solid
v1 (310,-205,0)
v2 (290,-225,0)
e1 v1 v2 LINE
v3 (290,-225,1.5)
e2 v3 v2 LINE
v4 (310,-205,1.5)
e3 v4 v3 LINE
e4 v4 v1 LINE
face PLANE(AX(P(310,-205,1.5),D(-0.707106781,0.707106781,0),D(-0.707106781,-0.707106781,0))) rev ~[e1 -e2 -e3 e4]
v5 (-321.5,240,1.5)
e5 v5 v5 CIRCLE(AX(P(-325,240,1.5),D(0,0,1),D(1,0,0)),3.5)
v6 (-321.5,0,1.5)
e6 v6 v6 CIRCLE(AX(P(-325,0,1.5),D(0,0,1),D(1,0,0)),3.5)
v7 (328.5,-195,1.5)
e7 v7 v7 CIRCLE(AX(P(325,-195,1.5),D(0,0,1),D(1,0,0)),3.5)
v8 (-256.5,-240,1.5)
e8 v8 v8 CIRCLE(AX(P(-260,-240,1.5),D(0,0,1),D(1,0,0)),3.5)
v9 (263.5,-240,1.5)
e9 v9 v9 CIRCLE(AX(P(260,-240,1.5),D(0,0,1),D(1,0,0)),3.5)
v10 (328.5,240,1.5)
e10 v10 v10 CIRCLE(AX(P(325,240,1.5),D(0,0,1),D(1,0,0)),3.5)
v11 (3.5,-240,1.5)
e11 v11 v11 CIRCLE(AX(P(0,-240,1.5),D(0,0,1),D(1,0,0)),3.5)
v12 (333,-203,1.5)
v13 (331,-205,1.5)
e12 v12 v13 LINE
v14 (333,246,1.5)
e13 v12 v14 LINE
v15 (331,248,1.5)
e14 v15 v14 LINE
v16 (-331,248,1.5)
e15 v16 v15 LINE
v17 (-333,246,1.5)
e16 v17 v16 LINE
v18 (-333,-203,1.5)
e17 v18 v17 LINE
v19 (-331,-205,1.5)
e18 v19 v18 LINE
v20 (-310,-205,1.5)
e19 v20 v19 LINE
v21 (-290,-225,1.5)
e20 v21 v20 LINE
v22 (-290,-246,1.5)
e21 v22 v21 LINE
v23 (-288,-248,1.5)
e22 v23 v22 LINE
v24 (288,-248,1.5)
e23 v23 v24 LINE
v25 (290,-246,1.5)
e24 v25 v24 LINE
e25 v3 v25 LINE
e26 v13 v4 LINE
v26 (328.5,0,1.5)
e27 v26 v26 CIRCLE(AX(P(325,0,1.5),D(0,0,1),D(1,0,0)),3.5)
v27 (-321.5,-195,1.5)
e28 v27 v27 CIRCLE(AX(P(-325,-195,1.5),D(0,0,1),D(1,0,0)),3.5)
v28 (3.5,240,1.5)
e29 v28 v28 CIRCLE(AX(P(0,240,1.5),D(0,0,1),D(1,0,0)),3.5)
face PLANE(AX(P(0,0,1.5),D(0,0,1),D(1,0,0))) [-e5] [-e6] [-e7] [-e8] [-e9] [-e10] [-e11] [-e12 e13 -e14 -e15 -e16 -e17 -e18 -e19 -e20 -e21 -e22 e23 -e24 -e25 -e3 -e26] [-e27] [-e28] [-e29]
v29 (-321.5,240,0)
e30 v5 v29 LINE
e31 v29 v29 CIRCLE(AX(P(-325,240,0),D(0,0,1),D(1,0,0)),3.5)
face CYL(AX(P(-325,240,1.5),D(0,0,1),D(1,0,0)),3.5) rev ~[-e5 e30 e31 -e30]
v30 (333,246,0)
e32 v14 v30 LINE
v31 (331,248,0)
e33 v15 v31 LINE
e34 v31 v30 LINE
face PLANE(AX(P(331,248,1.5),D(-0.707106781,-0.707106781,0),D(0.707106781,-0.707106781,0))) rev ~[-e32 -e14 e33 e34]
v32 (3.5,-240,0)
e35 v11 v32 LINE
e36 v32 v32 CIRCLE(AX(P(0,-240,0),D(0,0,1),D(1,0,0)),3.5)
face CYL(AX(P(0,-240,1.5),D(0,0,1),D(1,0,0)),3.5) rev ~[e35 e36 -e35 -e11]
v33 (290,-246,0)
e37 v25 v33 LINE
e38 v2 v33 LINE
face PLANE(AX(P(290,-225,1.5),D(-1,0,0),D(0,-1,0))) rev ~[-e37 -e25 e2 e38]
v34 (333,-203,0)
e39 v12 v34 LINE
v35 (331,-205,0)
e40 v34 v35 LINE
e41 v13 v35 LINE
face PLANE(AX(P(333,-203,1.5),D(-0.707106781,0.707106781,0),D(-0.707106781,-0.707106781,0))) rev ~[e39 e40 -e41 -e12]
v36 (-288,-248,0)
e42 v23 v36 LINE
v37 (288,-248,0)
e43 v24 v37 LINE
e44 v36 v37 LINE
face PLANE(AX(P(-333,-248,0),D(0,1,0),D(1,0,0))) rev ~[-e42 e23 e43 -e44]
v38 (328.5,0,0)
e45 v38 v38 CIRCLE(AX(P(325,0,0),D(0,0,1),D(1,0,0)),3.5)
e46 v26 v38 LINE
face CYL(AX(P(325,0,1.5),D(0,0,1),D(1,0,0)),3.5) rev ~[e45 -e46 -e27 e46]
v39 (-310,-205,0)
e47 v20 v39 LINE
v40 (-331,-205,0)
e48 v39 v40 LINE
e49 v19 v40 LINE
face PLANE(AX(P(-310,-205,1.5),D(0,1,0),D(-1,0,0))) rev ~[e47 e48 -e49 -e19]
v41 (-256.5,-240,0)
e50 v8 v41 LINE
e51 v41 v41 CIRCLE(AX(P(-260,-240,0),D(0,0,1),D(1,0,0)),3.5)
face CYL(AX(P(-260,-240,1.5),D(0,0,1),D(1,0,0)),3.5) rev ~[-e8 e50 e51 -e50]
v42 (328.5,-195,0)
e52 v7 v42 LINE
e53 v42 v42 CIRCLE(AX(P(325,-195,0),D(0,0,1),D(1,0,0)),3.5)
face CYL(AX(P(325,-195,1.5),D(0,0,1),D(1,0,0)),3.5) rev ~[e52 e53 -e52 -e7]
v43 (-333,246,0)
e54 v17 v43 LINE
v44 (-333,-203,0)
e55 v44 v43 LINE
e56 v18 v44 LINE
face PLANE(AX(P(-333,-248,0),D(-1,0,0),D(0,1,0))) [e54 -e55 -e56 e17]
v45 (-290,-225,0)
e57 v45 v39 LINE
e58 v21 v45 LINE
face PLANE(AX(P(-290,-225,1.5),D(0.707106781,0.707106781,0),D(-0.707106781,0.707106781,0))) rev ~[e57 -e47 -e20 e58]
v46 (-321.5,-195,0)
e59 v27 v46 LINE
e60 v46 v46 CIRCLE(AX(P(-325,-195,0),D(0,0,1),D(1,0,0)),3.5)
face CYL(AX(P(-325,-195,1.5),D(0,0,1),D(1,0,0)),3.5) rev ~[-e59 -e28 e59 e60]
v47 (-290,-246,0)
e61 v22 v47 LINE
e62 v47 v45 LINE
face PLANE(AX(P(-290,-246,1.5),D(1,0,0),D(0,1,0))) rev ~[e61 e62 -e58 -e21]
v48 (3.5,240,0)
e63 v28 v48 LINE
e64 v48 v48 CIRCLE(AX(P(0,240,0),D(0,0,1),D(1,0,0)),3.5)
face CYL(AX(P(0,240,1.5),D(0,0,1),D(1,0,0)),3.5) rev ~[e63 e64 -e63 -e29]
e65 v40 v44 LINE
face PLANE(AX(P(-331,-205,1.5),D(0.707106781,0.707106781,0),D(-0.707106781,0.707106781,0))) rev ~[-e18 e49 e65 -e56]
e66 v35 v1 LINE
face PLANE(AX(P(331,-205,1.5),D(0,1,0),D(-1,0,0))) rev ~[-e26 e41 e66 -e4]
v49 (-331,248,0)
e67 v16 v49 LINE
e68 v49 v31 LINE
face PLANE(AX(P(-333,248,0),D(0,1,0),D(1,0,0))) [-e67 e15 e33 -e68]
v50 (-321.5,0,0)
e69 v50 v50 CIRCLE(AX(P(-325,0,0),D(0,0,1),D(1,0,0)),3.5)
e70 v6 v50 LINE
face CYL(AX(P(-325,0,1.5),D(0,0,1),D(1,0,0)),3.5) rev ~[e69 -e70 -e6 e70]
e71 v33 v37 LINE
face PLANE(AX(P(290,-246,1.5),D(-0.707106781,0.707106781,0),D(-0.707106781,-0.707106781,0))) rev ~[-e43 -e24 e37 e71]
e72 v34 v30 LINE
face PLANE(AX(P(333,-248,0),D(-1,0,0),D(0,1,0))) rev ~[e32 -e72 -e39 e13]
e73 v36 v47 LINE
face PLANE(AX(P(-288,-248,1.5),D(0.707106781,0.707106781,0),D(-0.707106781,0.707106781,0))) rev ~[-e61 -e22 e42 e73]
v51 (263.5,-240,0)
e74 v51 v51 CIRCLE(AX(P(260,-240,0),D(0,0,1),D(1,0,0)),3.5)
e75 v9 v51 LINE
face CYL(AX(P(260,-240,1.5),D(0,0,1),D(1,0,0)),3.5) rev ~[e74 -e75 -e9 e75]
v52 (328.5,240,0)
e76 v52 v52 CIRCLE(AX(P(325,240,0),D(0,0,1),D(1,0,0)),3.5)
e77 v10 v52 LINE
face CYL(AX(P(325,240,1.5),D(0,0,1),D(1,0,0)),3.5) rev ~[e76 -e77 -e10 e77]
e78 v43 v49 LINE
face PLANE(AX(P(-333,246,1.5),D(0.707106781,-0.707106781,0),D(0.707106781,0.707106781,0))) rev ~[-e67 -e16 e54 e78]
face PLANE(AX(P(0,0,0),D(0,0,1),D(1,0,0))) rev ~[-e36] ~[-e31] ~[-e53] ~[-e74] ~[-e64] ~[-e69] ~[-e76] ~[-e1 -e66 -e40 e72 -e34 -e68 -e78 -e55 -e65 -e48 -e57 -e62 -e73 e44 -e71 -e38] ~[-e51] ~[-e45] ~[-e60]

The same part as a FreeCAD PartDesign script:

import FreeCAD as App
import Part
import Sketcher
Q = App.Units.Quantity

doc = App.newDocument("Part")
params = doc.addObject("Spreadsheet::Sheet", "Params")
for row, (alias, value) in enumerate([
    ("sketch1_width", "666 mm"),
    ("sketch1_height", "496 mm"),
    ("pad1_length", "1.5 mm"),
    ("sketch2_diameter", "7 mm"),
    ("sketch3_width", "2 mm"),
    ("sketch3_width2", "45 mm"),
    ("sketch3_width3", "21 mm"),
], start=1):
    params.set(f"A{row}", alias)
    params.set(f"B{row}", "=" + value)
    params.setAlias(f"B{row}", alias)

body = doc.addObject("PartDesign::Body", "Body")

sketch1 = doc.addObject("Sketcher::SketchObject", "Sketch")
body.addObject(sketch1)
sketch1.AttachmentSupport = (doc.XY_Plane, [""])
sketch1.MapMode = "FlatFace"
sketch1.addGeometry(Part.LineSegment(App.Vector(-333, 248, 0), App.Vector(-333, -248, 0)), False)
sketch1.addGeometry(Part.LineSegment(App.Vector(-333, -248, 0), App.Vector(333, -248, 0)), False)
sketch1.addGeometry(Part.LineSegment(App.Vector(333, -248, 0), App.Vector(333, 248, 0)), False)
sketch1.addGeometry(Part.LineSegment(App.Vector(333, 248, 0), App.Vector(-333, 248, 0)), False)
sketch1.addConstraint(Sketcher.Constraint("Coincident", 0, 2, 1, 1))
sketch1.addConstraint(Sketcher.Constraint("Coincident", 1, 2, 2, 1))
sketch1.addConstraint(Sketcher.Constraint("Coincident", 2, 2, 3, 1))
sketch1.addConstraint(Sketcher.Constraint("Coincident", 3, 2, 0, 1))
sketch1.addConstraint(Sketcher.Constraint("Vertical", 0))
sketch1.addConstraint(Sketcher.Constraint("Horizontal", 1))
sketch1.addConstraint(Sketcher.Constraint("Vertical", 2))
sketch1.addConstraint(Sketcher.Constraint("Horizontal", 3))
sketch1.addConstraint(Sketcher.Constraint("Symmetric", 0, 2, 2, 2, -1, 1))
sketch1.addConstraint(Sketcher.Constraint("DistanceX", 1, 1, 1, 2, Q("666 mm")))
sketch1.addConstraint(Sketcher.Constraint("DistanceY", 0, 2, 0, 1, Q("496 mm")))
sketch1.setExpression("Constraints[9]", "Params.sketch1_width")
sketch1.setExpression("Constraints[10]", "Params.sketch1_height")
pad1 = doc.addObject("PartDesign::Pad", "Pad")
body.addObject(pad1)
pad1.Profile = sketch1
pad1.setExpression("Length", "Params.pad1_length")

sketch2 = doc.addObject("Sketcher::SketchObject", "Sketch001")
body.addObject(sketch2)
sketch2.AttachmentSupport = (doc.XY_Plane, [""])
sketch2.MapMode = "FlatFace"
sketch2.AttachmentOffset = App.Placement(App.Vector(0, 0, 1.5), App.Rotation())
sketch2.addGeometry(Part.Circle(App.Vector(-325, 240, 0), App.Vector(0, 0, 1), 3.5), False)
sketch2.addGeometry(Part.Circle(App.Vector(0, 240, 0), App.Vector(0, 0, 1), 3.5), False)
sketch2.addGeometry(Part.Circle(App.Vector(325, 240, 0), App.Vector(0, 0, 1), 3.5), False)
sketch2.addGeometry(Part.Circle(App.Vector(325, 0, 0), App.Vector(0, 0, 1), 3.5), False)
sketch2.addGeometry(Part.Circle(App.Vector(325, -195, 0), App.Vector(0, 0, 1), 3.5), False)
sketch2.addGeometry(Part.Circle(App.Vector(260, -240, 0), App.Vector(0, 0, 1), 3.5), False)
sketch2.addGeometry(Part.Circle(App.Vector(-260, -240, 0), App.Vector(0, 0, 1), 3.5), False)
sketch2.addGeometry(Part.Circle(App.Vector(-325, -195, 0), App.Vector(0, 0, 1), 3.5), False)
sketch2.addGeometry(Part.Circle(App.Vector(-325, 0, 0), App.Vector(0, 0, 1), 3.5), False)
sketch2.addGeometry(Part.Circle(App.Vector(0, -240, 0), App.Vector(0, 0, 1), 3.5), False)
sketch2.addConstraint(Sketcher.Constraint("Equal", 0, 1))
sketch2.addConstraint(Sketcher.Constraint("Equal", 1, 2))
sketch2.addConstraint(Sketcher.Constraint("Equal", 2, 3))
sketch2.addConstraint(Sketcher.Constraint("Equal", 3, 4))
sketch2.addConstraint(Sketcher.Constraint("Equal", 4, 5))
sketch2.addConstraint(Sketcher.Constraint("Equal", 5, 6))
sketch2.addConstraint(Sketcher.Constraint("Equal", 6, 7))
sketch2.addConstraint(Sketcher.Constraint("Equal", 7, 8))
sketch2.addConstraint(Sketcher.Constraint("Equal", 8, 9))
sketch2.addConstraint(Sketcher.Constraint("Symmetric", 3, 3, 8, 3, -1, 1))
sketch2.addConstraint(Sketcher.Constraint("Symmetric", 1, 3, 9, 3, -1, 1))
sketch2.addConstraint(Sketcher.Constraint("Symmetric", 0, 3, 2, 3, -2))
sketch2.addConstraint(Sketcher.Constraint("Symmetric", 5, 3, 6, 3, -2))
sketch2.addConstraint(Sketcher.Constraint("Symmetric", 4, 3, 7, 3, -2))
sketch2.addConstraint(Sketcher.Constraint("PointOnObject", 1, 3, -2))
sketch2.addConstraint(Sketcher.Constraint("PointOnObject", 3, 3, -1))
sketch2.addConstraint(Sketcher.Constraint("Horizontal", 0, 3, 1, 3))
sketch2.addConstraint(Sketcher.Constraint("Horizontal", 6, 3, 9, 3))
sketch2.addConstraint(Sketcher.Constraint("Vertical", 2, 3, 3, 3))
sketch2.addConstraint(Sketcher.Constraint("Vertical", 3, 3, 4, 3))
sketch2.addConstraint(Sketcher.Constraint("Diameter", 0, Q("7 mm")))
sketch2.addConstraint(Sketcher.Constraint("DistanceX", 0, 3, -1, 1, Q("325 mm")))
sketch2.addConstraint(Sketcher.Constraint("DistanceY", -1, 1, 0, 3, Q("240 mm")))
sketch2.addConstraint(Sketcher.Constraint("DistanceY", 4, 3, -1, 1, Q("195 mm")))
sketch2.addConstraint(Sketcher.Constraint("DistanceX", -1, 1, 5, 3, Q("260 mm")))
sketch2.setExpression("Constraints[20]", "Params.sketch2_diameter")
pocket1 = doc.addObject("PartDesign::Pocket", "Pocket")
body.addObject(pocket1)
pocket1.Profile = sketch2
pocket1.Type = "ThroughAll"

sketch3 = doc.addObject("Sketcher::SketchObject", "Sketch002")
body.addObject(sketch3)
sketch3.AttachmentSupport = (doc.XY_Plane, [""])
sketch3.MapMode = "FlatFace"
sketch3.AttachmentOffset = App.Placement(App.Vector(0, 0, 1.5), App.Rotation())
sketch3.addGeometry(Part.LineSegment(App.Vector(-331, 248, 0), App.Vector(-333, 248, 0)), False)
sketch3.addGeometry(Part.LineSegment(App.Vector(-333, 248, 0), App.Vector(-333, 246, 0)), False)
sketch3.addGeometry(Part.LineSegment(App.Vector(-333, 246, 0), App.Vector(-331, 248, 0)), False)
sketch3.addGeometry(Part.LineSegment(App.Vector(-333, -248, 0), App.Vector(-288, -248, 0)), False)
sketch3.addGeometry(Part.LineSegment(App.Vector(-288, -248, 0), App.Vector(-290, -246, 0)), False)
sketch3.addGeometry(Part.LineSegment(App.Vector(-290, -246, 0), App.Vector(-290, -225, 0)), False)
sketch3.addGeometry(Part.LineSegment(App.Vector(-290, -225, 0), App.Vector(-310, -205, 0)), False)
sketch3.addGeometry(Part.LineSegment(App.Vector(-310, -205, 0), App.Vector(-331, -205, 0)), False)
sketch3.addGeometry(Part.LineSegment(App.Vector(-331, -205, 0), App.Vector(-333, -203, 0)), False)
sketch3.addGeometry(Part.LineSegment(App.Vector(-333, -203, 0), App.Vector(-333, -248, 0)), False)
sketch3.addGeometry(Part.LineSegment(App.Vector(333, 248, 0), App.Vector(331, 248, 0)), False)
sketch3.addGeometry(Part.LineSegment(App.Vector(331, 248, 0), App.Vector(333, 246, 0)), False)
sketch3.addGeometry(Part.LineSegment(App.Vector(333, 246, 0), App.Vector(333, 248, 0)), False)
sketch3.addGeometry(Part.LineSegment(App.Vector(333, -203, 0), App.Vector(331, -205, 0)), False)
sketch3.addGeometry(Part.LineSegment(App.Vector(331, -205, 0), App.Vector(310, -205, 0)), False)
sketch3.addGeometry(Part.LineSegment(App.Vector(310, -205, 0), App.Vector(290, -225, 0)), False)
sketch3.addGeometry(Part.LineSegment(App.Vector(290, -225, 0), App.Vector(290, -246, 0)), False)
sketch3.addGeometry(Part.LineSegment(App.Vector(290, -246, 0), App.Vector(288, -248, 0)), False)
sketch3.addGeometry(Part.LineSegment(App.Vector(288, -248, 0), App.Vector(333, -248, 0)), False)
sketch3.addGeometry(Part.LineSegment(App.Vector(333, -248, 0), App.Vector(333, -203, 0)), False)
sketch3.addConstraint(Sketcher.Constraint("Coincident", 0, 2, 1, 1))
sketch3.addConstraint(Sketcher.Constraint("Coincident", 1, 2, 2, 1))
sketch3.addConstraint(Sketcher.Constraint("Coincident", 2, 2, 0, 1))
sketch3.addConstraint(Sketcher.Constraint("Coincident", 3, 2, 4, 1))
sketch3.addConstraint(Sketcher.Constraint("Coincident", 4, 2, 5, 1))
sketch3.addConstraint(Sketcher.Constraint("Coincident", 5, 2, 6, 1))
sketch3.addConstraint(Sketcher.Constraint("Coincident", 6, 2, 7, 1))
sketch3.addConstraint(Sketcher.Constraint("Coincident", 7, 2, 8, 1))
sketch3.addConstraint(Sketcher.Constraint("Coincident", 8, 2, 9, 1))
sketch3.addConstraint(Sketcher.Constraint("Coincident", 9, 2, 3, 1))
sketch3.addConstraint(Sketcher.Constraint("Coincident", 10, 2, 11, 1))
sketch3.addConstraint(Sketcher.Constraint("Coincident", 11, 2, 12, 1))
sketch3.addConstraint(Sketcher.Constraint("Coincident", 12, 2, 10, 1))
sketch3.addConstraint(Sketcher.Constraint("Coincident", 13, 2, 14, 1))
sketch3.addConstraint(Sketcher.Constraint("Coincident", 14, 2, 15, 1))
sketch3.addConstraint(Sketcher.Constraint("Coincident", 15, 2, 16, 1))
sketch3.addConstraint(Sketcher.Constraint("Coincident", 16, 2, 17, 1))
sketch3.addConstraint(Sketcher.Constraint("Coincident", 17, 2, 18, 1))
sketch3.addConstraint(Sketcher.Constraint("Coincident", 18, 2, 19, 1))
sketch3.addConstraint(Sketcher.Constraint("Coincident", 19, 2, 13, 1))
sketch3.addConstraint(Sketcher.Constraint("Horizontal", 0))
sketch3.addConstraint(Sketcher.Constraint("Vertical", 1))
sketch3.addConstraint(Sketcher.Constraint("Horizontal", 3))
sketch3.addConstraint(Sketcher.Constraint("Vertical", 5))
sketch3.addConstraint(Sketcher.Constraint("Horizontal", 7))
sketch3.addConstraint(Sketcher.Constraint("Vertical", 9))
sketch3.addConstraint(Sketcher.Constraint("Horizontal", 10))
sketch3.addConstraint(Sketcher.Constraint("Vertical", 12))
sketch3.addConstraint(Sketcher.Constraint("Horizontal", 14))
sketch3.addConstraint(Sketcher.Constraint("Vertical", 16))
sketch3.addConstraint(Sketcher.Constraint("Horizontal", 18))
sketch3.addConstraint(Sketcher.Constraint("Vertical", 19))
sketch3.addConstraint(Sketcher.Constraint("Symmetric", 9, 2, 12, 2, -1, 1))
sketch3.addConstraint(Sketcher.Constraint("Symmetric", 0, 2, 18, 2, -1, 1))
sketch3.addConstraint(Sketcher.Constraint("Symmetric", 2, 2, 10, 2, -2))
sketch3.addConstraint(Sketcher.Constraint("Symmetric", 1, 2, 11, 2, -2))
sketch3.addConstraint(Sketcher.Constraint("Symmetric", 7, 2, 13, 2, -2))
sketch3.addConstraint(Sketcher.Constraint("Symmetric", 5, 2, 15, 2, -2))
sketch3.addConstraint(Sketcher.Constraint("Perpendicular", 2, 4))
sketch3.addConstraint(Sketcher.Constraint("Parallel", 4, 6))
sketch3.addConstraint(Sketcher.Constraint("Parallel", 6, 8))
sketch3.addConstraint(Sketcher.Constraint("Parallel", 8, 11))
sketch3.addConstraint(Sketcher.Constraint("Perpendicular", 11, 13))
sketch3.addConstraint(Sketcher.Constraint("Parallel", 13, 15))
sketch3.addConstraint(Sketcher.Constraint("Parallel", 15, 17))
sketch3.addConstraint(Sketcher.Constraint("Horizontal", 4, 2, 16, 2))
sketch3.addConstraint(Sketcher.Constraint("Vertical", 2, 2, 7, 2))
sketch3.addConstraint(Sketcher.Constraint("Equal", 14, 5))
sketch3.addConstraint(Sketcher.Constraint("Equal", 2, 4))
sketch3.addConstraint(Sketcher.Constraint("DistanceX", 0, 2, 0, 1, Q("2 mm")))
sketch3.addConstraint(Sketcher.Constraint("DistanceX", 3, 1, 3, 2, Q("45 mm")))
sketch3.addConstraint(Sketcher.Constraint("DistanceX", 7, 2, 7, 1, Q("21 mm")))
sketch3.addConstraint(Sketcher.Constraint("DistanceX", 0, 2, -1, 1, Q("333 mm")))
sketch3.addConstraint(Sketcher.Constraint("DistanceY", -1, 1, 0, 2, Q("248 mm")))
sketch3.setExpression("Constraints[49]", "Params.sketch3_width")
sketch3.setExpression("Constraints[50]", "Params.sketch3_width2")
sketch3.setExpression("Constraints[51]", "Params.sketch3_width3")
pocket2 = doc.addObject("PartDesign::Pocket", "Pocket001")
body.addObject(pocket2)
pocket2.Profile = sketch3
pocket2.Type = "ThroughAll"

doc.recompute()
